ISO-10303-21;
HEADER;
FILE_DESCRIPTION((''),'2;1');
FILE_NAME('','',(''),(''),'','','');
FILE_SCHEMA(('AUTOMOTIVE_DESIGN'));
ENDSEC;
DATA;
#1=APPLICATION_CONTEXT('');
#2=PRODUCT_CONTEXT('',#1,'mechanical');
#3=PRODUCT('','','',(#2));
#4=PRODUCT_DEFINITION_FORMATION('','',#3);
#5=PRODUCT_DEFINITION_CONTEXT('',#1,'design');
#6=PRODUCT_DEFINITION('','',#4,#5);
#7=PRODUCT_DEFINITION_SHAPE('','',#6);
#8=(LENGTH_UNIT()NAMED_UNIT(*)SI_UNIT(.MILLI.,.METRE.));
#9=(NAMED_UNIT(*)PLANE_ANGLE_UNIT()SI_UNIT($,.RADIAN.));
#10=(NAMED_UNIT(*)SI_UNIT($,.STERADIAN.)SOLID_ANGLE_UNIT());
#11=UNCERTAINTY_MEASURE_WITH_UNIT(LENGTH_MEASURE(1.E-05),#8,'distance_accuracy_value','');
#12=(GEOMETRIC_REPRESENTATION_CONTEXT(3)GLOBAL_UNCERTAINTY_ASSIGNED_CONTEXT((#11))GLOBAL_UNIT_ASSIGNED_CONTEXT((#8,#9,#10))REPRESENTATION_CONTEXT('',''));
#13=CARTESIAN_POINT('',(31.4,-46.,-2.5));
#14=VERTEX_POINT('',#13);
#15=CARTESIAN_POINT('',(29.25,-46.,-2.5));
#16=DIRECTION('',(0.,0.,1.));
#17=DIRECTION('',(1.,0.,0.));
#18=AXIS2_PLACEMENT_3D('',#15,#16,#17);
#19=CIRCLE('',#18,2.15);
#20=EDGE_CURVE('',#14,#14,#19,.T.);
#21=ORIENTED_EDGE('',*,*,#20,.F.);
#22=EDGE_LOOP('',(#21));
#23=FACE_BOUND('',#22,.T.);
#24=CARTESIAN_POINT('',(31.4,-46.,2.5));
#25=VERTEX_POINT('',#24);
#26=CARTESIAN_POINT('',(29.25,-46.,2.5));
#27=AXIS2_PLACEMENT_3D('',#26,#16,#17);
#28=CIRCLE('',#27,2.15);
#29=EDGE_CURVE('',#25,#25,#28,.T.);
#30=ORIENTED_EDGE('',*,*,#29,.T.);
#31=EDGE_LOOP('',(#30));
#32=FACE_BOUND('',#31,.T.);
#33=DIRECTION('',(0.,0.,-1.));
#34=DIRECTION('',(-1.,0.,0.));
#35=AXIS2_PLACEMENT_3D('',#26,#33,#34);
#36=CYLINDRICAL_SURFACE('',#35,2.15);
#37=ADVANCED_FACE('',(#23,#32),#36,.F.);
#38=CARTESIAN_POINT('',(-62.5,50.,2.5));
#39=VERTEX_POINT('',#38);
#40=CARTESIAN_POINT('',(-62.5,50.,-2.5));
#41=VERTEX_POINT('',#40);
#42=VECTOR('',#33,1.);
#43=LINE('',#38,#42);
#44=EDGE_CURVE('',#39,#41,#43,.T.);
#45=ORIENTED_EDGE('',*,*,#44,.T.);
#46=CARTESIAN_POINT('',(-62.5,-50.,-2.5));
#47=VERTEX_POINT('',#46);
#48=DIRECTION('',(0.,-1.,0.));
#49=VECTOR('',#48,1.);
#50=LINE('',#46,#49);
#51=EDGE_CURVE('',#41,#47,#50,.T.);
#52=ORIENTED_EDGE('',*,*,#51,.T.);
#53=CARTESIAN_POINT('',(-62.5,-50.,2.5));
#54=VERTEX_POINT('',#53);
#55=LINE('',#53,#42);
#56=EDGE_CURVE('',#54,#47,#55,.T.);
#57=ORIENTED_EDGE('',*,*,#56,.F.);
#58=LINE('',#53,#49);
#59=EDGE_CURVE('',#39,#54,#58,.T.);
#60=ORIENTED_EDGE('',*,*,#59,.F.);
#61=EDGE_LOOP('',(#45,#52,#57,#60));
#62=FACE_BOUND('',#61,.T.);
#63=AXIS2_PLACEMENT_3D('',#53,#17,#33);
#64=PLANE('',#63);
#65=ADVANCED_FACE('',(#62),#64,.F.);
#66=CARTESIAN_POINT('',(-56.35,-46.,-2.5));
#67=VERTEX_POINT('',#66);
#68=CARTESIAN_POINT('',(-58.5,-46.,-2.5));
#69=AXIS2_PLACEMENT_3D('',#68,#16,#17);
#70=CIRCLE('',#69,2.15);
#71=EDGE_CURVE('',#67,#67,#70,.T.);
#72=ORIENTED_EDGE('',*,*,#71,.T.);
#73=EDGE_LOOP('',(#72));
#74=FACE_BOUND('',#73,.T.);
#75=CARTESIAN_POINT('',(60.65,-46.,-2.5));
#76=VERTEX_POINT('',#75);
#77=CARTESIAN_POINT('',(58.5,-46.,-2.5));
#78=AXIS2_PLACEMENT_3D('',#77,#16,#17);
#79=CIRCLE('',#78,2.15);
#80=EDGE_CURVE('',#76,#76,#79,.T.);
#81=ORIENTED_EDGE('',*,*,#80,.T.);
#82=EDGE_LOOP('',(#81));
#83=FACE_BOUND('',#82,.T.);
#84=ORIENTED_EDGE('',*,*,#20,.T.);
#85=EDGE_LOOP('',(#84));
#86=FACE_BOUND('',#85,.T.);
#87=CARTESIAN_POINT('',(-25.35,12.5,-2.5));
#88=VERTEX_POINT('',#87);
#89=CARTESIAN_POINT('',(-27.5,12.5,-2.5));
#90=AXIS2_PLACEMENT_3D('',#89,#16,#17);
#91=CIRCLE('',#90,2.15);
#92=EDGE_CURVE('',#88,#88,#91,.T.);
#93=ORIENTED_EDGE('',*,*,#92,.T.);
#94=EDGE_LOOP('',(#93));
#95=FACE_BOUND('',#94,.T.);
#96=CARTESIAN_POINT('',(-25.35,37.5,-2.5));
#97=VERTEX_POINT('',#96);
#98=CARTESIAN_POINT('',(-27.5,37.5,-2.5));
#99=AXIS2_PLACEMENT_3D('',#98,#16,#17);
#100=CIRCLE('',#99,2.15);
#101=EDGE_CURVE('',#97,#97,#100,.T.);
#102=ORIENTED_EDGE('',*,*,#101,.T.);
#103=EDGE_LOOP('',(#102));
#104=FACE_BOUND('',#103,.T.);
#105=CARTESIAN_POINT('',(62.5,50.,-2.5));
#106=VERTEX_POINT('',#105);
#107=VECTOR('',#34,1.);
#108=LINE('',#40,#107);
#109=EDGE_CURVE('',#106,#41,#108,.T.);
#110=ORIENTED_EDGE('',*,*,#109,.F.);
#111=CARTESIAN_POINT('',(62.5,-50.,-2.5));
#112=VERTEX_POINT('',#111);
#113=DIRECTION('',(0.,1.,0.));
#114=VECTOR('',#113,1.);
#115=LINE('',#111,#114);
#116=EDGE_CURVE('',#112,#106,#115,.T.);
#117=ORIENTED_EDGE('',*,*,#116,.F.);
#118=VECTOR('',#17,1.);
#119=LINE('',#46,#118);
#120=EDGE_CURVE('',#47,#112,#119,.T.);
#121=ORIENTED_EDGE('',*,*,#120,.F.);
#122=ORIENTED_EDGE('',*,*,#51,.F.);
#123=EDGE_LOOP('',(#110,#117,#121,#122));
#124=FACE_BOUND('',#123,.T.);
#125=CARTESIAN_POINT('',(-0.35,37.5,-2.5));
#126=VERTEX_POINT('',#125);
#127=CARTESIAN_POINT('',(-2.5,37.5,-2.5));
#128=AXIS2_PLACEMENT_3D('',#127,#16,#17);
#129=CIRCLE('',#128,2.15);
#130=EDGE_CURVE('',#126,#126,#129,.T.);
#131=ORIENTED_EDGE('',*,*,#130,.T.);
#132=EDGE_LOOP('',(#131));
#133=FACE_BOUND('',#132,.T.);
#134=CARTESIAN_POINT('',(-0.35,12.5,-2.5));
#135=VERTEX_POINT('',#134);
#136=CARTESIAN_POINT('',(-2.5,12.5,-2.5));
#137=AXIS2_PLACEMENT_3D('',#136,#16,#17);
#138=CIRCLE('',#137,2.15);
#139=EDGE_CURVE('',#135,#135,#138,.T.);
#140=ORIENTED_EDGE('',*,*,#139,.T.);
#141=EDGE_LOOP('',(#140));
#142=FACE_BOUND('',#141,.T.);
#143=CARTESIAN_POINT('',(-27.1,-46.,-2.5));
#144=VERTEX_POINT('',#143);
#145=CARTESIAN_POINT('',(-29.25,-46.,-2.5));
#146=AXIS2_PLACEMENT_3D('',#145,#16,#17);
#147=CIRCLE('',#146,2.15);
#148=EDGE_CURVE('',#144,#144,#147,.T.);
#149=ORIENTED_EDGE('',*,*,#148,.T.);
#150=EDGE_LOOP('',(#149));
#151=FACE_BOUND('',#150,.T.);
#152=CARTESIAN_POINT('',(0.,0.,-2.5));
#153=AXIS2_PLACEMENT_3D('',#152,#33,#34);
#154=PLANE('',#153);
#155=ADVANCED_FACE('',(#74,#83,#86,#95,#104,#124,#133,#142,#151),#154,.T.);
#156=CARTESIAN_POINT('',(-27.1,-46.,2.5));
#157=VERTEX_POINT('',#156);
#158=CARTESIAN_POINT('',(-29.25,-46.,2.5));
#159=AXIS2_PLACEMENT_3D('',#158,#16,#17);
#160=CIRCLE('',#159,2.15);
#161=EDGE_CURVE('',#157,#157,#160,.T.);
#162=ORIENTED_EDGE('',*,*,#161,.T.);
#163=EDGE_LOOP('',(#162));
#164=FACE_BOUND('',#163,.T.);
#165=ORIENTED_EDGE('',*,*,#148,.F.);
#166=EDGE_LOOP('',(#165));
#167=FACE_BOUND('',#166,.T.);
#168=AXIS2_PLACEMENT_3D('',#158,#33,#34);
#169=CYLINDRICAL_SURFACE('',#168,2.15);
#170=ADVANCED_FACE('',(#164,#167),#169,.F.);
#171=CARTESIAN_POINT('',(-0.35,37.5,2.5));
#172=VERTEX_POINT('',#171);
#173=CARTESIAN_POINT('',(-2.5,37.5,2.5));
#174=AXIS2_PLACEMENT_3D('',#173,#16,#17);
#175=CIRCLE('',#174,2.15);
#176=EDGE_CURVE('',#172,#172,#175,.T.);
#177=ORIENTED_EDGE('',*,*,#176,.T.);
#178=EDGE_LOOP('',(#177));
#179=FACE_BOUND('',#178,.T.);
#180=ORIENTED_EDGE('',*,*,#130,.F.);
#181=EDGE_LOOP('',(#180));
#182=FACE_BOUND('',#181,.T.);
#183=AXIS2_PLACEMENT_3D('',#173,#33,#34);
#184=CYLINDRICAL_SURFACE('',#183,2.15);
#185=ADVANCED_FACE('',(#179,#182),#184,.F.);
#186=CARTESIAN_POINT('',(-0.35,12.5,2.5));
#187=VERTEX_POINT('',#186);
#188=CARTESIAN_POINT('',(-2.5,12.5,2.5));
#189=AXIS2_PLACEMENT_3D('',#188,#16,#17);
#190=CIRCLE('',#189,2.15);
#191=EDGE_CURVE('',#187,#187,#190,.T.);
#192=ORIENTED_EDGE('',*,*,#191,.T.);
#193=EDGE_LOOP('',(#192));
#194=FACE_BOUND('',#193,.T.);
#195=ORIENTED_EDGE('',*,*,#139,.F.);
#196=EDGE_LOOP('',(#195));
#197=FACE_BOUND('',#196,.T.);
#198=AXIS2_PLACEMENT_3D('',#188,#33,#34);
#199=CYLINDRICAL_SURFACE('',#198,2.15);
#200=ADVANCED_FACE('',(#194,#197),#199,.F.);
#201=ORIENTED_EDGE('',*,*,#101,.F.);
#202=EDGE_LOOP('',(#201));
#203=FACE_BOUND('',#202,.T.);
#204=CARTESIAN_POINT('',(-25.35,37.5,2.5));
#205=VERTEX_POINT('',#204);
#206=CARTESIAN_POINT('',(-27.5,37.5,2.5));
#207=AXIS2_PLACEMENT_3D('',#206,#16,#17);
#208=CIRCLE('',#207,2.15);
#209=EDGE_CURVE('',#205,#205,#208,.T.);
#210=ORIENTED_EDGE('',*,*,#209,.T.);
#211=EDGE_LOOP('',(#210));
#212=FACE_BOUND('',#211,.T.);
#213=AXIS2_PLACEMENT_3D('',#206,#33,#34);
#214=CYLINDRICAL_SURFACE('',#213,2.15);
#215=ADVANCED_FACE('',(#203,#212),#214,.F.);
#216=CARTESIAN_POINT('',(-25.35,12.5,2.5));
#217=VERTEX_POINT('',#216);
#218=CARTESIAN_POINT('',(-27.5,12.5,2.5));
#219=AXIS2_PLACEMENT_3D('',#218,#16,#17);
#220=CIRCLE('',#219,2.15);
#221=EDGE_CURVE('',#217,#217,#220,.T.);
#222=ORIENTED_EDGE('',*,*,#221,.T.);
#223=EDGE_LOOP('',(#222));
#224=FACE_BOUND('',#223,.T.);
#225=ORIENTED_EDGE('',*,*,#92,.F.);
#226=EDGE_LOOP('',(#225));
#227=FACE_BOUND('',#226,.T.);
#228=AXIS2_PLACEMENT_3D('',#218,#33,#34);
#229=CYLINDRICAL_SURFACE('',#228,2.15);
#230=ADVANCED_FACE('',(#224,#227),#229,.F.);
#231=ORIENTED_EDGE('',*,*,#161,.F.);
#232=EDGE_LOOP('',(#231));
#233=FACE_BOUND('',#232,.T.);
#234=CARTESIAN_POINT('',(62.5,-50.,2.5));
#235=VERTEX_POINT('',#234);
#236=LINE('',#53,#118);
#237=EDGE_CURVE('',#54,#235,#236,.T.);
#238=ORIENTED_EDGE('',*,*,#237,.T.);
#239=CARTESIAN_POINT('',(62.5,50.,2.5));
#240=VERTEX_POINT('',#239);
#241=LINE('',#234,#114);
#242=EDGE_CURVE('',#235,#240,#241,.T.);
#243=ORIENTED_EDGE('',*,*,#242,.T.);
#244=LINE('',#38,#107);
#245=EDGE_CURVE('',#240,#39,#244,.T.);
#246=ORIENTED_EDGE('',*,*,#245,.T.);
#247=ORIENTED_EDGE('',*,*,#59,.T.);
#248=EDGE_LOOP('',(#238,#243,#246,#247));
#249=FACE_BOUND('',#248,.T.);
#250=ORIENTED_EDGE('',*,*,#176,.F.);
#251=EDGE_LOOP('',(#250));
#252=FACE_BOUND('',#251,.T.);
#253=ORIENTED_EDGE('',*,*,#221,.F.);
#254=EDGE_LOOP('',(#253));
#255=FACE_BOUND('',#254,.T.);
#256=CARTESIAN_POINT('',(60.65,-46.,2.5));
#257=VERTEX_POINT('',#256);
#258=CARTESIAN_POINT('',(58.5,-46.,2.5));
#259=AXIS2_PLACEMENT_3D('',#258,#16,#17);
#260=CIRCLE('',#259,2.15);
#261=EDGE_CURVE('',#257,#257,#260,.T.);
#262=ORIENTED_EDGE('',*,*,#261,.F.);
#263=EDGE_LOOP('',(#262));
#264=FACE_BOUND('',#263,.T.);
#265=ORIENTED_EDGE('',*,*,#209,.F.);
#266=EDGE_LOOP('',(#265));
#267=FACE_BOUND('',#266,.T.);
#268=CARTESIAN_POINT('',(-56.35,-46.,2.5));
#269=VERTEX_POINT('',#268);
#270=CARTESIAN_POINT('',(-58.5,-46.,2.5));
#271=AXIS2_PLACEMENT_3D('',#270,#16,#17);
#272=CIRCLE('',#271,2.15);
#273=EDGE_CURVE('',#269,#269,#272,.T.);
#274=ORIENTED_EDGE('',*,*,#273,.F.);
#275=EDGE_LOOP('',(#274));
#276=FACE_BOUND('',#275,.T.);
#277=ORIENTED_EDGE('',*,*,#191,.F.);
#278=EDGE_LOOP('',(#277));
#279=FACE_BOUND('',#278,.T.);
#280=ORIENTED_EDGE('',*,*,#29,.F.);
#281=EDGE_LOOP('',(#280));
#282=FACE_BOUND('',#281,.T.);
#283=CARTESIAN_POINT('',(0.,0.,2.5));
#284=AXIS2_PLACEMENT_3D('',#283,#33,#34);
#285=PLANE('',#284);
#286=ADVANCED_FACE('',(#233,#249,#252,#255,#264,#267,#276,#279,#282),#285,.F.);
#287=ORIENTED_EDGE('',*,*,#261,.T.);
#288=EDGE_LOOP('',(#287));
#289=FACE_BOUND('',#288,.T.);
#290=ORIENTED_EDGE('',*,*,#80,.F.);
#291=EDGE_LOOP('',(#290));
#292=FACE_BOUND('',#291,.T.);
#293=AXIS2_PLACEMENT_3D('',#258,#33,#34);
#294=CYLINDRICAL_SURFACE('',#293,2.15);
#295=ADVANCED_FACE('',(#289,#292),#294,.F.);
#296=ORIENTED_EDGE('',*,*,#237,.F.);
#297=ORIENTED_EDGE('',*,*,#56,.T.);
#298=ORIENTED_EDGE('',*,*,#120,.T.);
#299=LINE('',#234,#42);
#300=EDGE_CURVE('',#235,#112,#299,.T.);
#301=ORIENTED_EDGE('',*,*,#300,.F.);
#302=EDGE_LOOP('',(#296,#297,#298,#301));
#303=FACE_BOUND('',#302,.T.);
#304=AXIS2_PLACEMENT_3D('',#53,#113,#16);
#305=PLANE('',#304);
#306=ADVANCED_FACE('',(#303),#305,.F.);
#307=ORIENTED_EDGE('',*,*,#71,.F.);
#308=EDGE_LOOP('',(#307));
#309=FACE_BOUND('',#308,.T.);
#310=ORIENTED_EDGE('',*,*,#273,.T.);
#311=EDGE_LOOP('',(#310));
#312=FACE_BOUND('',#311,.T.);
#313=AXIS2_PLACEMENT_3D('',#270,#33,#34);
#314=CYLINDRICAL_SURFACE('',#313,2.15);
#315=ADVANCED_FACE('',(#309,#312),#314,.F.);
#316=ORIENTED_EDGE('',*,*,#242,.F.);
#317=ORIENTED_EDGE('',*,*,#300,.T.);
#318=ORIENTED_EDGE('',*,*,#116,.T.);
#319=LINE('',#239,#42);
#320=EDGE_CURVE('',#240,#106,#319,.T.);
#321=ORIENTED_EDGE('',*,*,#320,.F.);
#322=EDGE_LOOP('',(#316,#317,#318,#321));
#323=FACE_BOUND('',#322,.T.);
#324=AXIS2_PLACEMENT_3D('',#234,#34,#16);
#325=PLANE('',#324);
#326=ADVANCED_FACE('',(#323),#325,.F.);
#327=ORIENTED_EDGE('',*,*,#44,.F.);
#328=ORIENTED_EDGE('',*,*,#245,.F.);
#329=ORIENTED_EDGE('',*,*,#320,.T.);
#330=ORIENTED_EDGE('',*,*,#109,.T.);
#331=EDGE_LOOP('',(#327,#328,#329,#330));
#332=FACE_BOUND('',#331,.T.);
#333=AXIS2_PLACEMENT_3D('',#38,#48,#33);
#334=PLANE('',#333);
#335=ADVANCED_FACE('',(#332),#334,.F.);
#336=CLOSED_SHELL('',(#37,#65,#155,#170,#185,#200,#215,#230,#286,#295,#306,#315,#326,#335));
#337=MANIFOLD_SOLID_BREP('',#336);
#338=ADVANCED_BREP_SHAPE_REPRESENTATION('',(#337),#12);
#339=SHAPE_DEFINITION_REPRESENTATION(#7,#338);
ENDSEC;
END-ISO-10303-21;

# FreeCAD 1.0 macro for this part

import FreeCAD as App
import Part
import Sketcher
from FreeCAD import Vector
Q = App.Units.Quantity


def add_polygon(sketch, points):
    """Adds a closed chain of lines whose ends are joined by coincident constraints."""
    first, n = sketch.GeometryCount, len(points)
    for a, b in zip(points, points[1:] + points[:1]):
        sketch.addGeometry(Part.LineSegment(App.Vector(*a, 0), App.Vector(*b, 0)), False)
    for i in range(n):
        sketch.addConstraint(Sketcher.Constraint("Coincident", first + i, 2, first + (i + 1) % n, 1))

doc = App.newDocument("Part")
body = doc.addObject("PartDesign::Body", "Body")

# Sketch on XY plane
sketch1 = doc.addObject("Sketcher::SketchObject", "Sketch")
body.addObject(sketch1)
sketch1.AttachmentSupport = (doc.XY_Plane, [""])
sketch1.MapMode = "FlatFace"
add_polygon(sketch1, [(-62.5, 50), (-62.5, -50), (62.5, -50), (62.5, 50)])  # lines 0-3
sketch1.addGeometry(Part.Circle(Vector(-58.5, -46, 0), Vector(0, 0, 1), 2.1), False)  # 4
sketch1.addGeometry(Part.Circle(Vector(-29.2, -46, 0), Vector(0, 0, 1), 2.1), False)  # 5
sketch1.addGeometry(Part.Circle(Vector(29.2, -46, 0), Vector(0, 0, 1), 2.1), False)  # 6
sketch1.addGeometry(Part.Circle(Vector(58.5, -46, 0), Vector(0, 0, 1), 2.1), False)  # 7
sketch1.addGeometry(Part.Circle(Vector(-27.5, 12.5, 0), Vector(0, 0, 1), 2.1), False)  # 8
sketch1.addGeometry(Part.Circle(Vector(-2.5, 12.5, 0), Vector(0, 0, 1), 2.1), False)  # 9
sketch1.addGeometry(Part.Circle(Vector(-27.5, 37.5, 0), Vector(0, 0, 1), 2.1), False)  # 10
sketch1.addGeometry(Part.Circle(Vector(-2.5, 37.5, 0), Vector(0, 0, 1), 2.1), False)  # 11
sketch1.addConstraint(Sketcher.Constraint("Vertical", 0))
sketch1.addConstraint(Sketcher.Constraint("Horizontal", 1))
sketch1.addConstraint(Sketcher.Constraint("Vertical", 2))
sketch1.addConstraint(Sketcher.Constraint("Horizontal", 3))
sketch1.addConstraint(Sketcher.Constraint("Equal", 4, 5))
sketch1.addConstraint(Sketcher.Constraint("Equal", 5, 6))
sketch1.addConstraint(Sketcher.Constraint("Equal", 6, 7))
sketch1.addConstraint(Sketcher.Constraint("Equal", 7, 8))
sketch1.addConstraint(Sketcher.Constraint("Equal", 8, 9))
sketch1.addConstraint(Sketcher.Constraint("Equal", 9, 10))
sketch1.addConstraint(Sketcher.Constraint("Equal", 10, 11))
sketch1.addConstraint(Sketcher.Constraint("Symmetric", 0, 2, 2, 2, -1, 1))
sketch1.addConstraint(Sketcher.Constraint("Symmetric", 5, 3, 6, 3, -2))
sketch1.addConstraint(Sketcher.Constraint("Symmetric", 4, 3, 7, 3, -2))
sketch1.addConstraint(Sketcher.Constraint("Horizontal", 4, 3, 5, 3))
sketch1.addConstraint(Sketcher.Constraint("Horizontal", 8, 3, 9, 3))
sketch1.addConstraint(Sketcher.Constraint("Horizontal", 10, 3, 11, 3))
sketch1.addConstraint(Sketcher.Constraint("Vertical", 8, 3, 10, 3))
sketch1.addConstraint(Sketcher.Constraint("Vertical", 9, 3, 11, 3))
sketch1.addConstraint(Sketcher.Constraint("Diameter", 4, Q("4.3 mm")))
sketch1.addConstraint(Sketcher.Constraint("DistanceX", 1, 1, 1, 2, Q("125 mm")))
sketch1.addConstraint(Sketcher.Constraint("DistanceY", 0, 2, 0, 1, Q("100 mm")))
sketch1.addConstraint(Sketcher.Constraint("DistanceY", 4, 3, -1, 1, Q("46 mm")))
sketch1.addConstraint(Sketcher.Constraint("DistanceX", 4, 3, 7, 3, Q("117 mm")))
sketch1.addConstraint(Sketcher.Constraint("DistanceX", 4, 3, 8, 3, Q("31 mm")))
sketch1.addConstraint(Sketcher.Constraint("DistanceX", 8, 3, 9, 3, Q("25 mm")))
sketch1.addConstraint(Sketcher.Constraint("DistanceY", 8, 3, 10, 3, Q("25 mm")))
sketch1.addConstraint(Sketcher.Constraint("DistanceY", -1, 1, 8, 3, Q("12.5 mm")))
sketch1.addConstraint(Sketcher.Constraint("DistanceX", 5, 3, 6, 3, Q("58.5 mm")))
pad1 = doc.addObject("PartDesign::Pad", "Pad")
body.addObject(pad1)
pad1.Profile = sketch1
pad1.Length = 5
pad1.Midplane = True

doc.recompute()
